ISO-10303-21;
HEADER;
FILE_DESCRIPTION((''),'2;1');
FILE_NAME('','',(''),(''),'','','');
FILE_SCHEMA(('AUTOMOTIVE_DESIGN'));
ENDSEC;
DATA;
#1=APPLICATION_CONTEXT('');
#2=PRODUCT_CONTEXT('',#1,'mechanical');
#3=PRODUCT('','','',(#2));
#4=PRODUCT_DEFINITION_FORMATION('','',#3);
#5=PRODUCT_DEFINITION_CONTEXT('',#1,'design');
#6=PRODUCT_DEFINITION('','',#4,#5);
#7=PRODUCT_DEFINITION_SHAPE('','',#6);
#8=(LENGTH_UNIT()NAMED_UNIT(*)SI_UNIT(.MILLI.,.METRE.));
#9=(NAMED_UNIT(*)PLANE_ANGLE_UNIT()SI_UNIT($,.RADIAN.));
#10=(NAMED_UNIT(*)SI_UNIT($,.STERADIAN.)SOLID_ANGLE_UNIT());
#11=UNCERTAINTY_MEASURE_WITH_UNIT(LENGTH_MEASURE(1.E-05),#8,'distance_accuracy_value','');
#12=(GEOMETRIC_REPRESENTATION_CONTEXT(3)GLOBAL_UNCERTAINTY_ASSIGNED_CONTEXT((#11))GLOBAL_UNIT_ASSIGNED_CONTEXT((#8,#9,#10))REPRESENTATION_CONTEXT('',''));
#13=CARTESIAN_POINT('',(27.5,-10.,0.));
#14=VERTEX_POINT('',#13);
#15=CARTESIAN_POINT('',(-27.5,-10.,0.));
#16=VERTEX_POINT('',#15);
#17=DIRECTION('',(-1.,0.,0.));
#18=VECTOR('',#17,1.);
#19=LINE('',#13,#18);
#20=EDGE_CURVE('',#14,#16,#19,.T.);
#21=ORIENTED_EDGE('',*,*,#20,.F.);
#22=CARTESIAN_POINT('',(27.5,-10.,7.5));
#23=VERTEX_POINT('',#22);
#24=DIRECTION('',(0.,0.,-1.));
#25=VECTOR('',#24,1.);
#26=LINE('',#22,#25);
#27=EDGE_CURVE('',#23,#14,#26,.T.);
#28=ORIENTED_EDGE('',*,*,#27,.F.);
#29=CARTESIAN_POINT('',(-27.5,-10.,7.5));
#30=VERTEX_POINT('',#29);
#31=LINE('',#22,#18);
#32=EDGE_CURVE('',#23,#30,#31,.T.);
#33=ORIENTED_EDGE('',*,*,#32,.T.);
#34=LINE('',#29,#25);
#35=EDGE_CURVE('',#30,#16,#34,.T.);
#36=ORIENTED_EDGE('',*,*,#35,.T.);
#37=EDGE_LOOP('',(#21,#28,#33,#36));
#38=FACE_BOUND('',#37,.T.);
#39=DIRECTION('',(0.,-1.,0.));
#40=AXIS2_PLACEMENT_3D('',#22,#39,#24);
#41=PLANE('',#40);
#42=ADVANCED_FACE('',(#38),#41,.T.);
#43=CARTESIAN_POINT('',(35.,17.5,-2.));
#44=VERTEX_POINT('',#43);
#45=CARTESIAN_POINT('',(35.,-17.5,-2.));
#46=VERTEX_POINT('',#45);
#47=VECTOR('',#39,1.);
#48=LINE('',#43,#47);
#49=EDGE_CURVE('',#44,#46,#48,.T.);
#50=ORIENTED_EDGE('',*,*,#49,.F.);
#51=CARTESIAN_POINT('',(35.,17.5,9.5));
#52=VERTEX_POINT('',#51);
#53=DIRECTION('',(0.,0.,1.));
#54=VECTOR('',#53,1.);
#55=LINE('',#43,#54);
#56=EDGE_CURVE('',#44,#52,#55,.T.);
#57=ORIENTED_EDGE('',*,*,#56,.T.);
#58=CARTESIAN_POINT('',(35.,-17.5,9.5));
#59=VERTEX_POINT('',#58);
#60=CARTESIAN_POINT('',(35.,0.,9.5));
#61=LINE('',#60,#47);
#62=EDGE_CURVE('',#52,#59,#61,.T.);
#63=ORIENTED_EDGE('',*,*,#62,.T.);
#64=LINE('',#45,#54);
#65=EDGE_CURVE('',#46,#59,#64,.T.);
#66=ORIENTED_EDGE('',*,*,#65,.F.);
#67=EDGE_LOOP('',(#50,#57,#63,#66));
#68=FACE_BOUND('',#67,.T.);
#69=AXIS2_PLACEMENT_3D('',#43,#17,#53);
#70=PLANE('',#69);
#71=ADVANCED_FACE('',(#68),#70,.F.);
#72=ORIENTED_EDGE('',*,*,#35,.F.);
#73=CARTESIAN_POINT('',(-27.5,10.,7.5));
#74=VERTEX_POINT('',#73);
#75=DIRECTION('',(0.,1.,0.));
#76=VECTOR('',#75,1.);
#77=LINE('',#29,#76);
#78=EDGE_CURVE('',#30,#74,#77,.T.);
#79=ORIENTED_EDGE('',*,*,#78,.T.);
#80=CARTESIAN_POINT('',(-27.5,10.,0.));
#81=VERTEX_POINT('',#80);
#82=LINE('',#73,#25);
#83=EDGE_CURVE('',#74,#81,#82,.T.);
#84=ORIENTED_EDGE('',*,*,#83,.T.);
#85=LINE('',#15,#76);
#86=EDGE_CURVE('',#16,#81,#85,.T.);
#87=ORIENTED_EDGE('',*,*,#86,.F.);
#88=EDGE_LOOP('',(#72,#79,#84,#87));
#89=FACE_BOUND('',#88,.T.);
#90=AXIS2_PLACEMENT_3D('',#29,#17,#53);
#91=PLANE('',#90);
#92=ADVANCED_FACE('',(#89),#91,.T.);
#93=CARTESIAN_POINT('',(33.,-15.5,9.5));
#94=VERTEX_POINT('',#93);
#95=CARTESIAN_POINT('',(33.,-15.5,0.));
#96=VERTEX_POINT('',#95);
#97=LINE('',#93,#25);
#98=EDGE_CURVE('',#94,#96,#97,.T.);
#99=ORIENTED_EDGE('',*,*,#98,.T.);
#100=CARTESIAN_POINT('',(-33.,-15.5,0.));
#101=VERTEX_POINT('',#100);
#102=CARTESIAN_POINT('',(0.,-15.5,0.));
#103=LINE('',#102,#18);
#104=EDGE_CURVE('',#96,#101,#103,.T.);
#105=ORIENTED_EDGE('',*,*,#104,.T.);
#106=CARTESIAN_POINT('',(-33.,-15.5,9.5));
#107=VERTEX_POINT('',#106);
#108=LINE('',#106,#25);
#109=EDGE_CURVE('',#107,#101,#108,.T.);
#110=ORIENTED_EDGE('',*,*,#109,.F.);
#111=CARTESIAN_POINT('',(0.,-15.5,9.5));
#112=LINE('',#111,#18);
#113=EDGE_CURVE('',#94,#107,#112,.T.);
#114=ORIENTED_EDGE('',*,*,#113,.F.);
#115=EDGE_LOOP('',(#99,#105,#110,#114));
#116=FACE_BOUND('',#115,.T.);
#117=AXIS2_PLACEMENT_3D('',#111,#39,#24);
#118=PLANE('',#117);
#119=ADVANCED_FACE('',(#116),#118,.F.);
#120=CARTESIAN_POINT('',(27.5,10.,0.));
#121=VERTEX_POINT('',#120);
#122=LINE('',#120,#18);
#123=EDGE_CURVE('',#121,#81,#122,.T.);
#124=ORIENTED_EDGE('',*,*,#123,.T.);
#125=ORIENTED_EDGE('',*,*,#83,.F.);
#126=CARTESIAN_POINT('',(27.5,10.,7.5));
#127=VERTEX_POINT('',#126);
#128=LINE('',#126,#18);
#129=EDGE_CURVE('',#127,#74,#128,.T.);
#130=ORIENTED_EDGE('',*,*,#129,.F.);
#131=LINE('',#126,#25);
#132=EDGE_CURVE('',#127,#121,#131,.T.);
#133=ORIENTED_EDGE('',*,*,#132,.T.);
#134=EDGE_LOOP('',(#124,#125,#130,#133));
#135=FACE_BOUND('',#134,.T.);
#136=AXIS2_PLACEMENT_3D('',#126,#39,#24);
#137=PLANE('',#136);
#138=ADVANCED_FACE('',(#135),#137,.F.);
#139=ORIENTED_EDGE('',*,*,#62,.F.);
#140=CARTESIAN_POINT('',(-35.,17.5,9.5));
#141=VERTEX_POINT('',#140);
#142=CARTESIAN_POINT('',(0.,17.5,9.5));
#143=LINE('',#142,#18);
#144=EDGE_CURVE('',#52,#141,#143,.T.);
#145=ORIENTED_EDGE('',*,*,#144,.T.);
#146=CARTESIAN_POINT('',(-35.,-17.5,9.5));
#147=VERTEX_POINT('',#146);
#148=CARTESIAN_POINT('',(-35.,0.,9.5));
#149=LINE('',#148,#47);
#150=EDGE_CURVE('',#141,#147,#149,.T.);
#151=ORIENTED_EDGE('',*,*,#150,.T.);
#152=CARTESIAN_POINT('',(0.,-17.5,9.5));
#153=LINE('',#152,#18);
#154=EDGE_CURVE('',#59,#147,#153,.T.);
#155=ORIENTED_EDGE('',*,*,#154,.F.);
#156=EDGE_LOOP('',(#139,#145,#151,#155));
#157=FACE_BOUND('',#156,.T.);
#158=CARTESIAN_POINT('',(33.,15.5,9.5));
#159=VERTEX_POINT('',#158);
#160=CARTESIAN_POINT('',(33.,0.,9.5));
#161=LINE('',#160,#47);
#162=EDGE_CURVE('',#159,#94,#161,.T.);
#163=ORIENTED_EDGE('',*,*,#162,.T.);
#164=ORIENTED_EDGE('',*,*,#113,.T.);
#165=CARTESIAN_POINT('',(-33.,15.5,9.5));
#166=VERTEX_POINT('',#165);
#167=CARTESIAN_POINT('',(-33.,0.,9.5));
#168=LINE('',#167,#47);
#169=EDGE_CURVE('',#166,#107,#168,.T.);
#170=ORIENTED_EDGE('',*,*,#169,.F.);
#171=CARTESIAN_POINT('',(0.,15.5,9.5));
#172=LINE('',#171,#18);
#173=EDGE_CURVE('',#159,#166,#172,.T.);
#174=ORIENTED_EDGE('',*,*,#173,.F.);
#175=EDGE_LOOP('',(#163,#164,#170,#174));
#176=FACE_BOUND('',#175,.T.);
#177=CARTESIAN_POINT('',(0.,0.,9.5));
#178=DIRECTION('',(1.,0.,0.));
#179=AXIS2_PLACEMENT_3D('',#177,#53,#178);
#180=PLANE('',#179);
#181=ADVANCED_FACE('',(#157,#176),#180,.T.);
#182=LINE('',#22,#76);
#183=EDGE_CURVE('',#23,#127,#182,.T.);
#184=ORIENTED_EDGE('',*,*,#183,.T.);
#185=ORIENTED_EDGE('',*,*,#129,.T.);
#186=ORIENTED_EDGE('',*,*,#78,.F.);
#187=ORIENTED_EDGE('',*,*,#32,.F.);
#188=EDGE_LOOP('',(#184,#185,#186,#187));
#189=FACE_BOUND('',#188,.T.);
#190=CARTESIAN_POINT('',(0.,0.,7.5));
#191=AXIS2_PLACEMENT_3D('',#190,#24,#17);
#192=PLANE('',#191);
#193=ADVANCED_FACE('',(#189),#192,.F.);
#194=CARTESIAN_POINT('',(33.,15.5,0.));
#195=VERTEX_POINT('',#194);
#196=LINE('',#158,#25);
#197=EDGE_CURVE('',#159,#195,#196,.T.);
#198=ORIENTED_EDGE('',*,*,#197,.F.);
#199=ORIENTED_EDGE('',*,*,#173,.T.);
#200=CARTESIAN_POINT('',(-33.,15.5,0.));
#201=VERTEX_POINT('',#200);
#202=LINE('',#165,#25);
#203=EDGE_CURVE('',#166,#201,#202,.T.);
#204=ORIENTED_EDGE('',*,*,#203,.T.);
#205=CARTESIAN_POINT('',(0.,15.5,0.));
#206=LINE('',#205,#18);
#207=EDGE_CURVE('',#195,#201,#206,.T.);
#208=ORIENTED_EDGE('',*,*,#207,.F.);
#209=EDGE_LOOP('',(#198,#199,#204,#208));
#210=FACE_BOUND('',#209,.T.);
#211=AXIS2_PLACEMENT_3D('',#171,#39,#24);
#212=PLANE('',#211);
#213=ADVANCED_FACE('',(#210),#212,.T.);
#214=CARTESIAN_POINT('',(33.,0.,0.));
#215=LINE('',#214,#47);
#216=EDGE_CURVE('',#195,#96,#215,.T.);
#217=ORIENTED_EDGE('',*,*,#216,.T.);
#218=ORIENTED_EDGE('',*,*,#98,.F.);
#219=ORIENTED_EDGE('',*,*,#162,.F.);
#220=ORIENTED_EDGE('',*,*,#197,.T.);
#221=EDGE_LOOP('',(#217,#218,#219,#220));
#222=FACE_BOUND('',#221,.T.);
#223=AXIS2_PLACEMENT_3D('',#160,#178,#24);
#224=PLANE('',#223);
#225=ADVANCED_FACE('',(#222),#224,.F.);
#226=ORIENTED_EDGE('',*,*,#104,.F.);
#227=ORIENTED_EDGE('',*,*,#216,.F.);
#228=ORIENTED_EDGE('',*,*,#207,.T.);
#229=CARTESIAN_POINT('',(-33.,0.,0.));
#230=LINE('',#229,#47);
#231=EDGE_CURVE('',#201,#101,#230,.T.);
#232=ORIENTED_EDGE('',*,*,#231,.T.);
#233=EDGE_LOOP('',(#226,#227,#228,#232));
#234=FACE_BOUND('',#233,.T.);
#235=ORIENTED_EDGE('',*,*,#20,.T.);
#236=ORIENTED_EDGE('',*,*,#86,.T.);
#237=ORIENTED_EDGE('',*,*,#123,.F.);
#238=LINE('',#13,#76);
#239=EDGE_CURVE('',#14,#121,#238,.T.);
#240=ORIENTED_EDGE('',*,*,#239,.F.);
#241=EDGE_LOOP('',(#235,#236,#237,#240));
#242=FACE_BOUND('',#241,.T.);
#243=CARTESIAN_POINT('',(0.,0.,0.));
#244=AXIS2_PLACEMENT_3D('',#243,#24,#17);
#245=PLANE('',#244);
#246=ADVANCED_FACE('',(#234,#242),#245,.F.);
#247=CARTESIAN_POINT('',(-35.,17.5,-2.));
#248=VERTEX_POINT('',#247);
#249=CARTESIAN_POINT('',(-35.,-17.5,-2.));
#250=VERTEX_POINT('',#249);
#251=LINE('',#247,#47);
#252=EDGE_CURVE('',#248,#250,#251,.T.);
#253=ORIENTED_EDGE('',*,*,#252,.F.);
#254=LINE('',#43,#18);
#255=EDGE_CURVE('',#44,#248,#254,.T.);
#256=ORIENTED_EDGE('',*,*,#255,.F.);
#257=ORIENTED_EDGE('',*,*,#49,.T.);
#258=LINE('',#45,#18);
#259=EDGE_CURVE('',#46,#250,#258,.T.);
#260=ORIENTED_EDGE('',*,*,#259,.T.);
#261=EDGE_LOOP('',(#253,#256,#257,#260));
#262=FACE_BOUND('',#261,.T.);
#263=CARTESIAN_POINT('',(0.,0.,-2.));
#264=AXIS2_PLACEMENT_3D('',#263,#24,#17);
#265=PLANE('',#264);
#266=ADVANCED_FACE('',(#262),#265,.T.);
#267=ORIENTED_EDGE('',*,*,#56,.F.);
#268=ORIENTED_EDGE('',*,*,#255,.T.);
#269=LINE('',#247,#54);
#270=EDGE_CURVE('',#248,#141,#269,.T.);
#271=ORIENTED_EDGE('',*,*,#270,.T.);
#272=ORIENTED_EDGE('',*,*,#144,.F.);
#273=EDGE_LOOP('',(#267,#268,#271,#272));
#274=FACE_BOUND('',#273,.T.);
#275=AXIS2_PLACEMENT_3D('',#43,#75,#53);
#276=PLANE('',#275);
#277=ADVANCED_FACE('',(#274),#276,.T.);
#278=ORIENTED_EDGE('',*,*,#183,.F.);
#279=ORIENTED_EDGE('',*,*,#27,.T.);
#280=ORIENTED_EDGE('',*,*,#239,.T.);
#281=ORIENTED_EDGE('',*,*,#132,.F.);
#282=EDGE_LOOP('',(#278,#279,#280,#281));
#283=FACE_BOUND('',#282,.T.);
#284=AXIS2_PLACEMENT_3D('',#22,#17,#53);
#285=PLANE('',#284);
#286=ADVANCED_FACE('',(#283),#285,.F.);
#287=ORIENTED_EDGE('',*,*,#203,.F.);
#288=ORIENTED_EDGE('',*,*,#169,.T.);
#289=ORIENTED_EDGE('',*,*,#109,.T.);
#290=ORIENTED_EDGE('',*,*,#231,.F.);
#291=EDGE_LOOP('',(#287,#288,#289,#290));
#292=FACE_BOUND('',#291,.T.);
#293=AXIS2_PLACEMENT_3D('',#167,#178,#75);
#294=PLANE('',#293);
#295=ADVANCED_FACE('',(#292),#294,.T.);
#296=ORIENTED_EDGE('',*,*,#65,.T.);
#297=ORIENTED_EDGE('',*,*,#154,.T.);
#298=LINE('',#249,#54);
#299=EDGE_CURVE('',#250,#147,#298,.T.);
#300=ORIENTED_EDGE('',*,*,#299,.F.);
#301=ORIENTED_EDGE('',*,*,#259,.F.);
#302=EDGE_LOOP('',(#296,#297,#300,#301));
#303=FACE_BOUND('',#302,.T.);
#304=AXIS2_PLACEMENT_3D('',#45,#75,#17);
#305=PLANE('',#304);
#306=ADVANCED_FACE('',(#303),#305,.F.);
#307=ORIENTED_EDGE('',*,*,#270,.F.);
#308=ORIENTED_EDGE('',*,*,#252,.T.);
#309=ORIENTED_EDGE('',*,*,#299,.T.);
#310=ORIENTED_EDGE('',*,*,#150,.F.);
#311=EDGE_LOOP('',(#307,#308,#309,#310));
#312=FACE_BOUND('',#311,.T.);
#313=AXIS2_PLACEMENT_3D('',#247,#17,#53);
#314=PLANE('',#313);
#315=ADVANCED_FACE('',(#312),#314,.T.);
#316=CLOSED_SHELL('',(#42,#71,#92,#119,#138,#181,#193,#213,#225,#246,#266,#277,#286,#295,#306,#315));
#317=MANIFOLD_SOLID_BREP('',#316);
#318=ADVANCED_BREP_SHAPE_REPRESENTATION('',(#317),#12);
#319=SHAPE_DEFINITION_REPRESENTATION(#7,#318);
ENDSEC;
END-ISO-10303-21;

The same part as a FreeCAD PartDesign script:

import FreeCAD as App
import Part
import Sketcher
from FreeCAD import Vector
Q = App.Units.Quantity

doc = App.newDocument("Part")
params = doc.addObject("Spreadsheet::Sheet", "Params")
for row, (alias, value) in enumerate([
    ("sketch1_width", "70 mm"),
    ("sketch1_height", "35 mm"),
    ("pad1_length", "2 mm"),
    ("sketch2_width", "70 mm"),
    ("sketch2_width2", "66 mm"),
    ("sketch2_height", "35 mm"),
    ("sketch2_height2", "31 mm"),
    ("pad2_length", "9.5 mm"),
    ("sketch3_width", "55 mm"),
    ("sketch3_height", "20 mm"),
    ("pad3_length", "7.5 mm"),
], start=1):
    params.set(f"A{row}", alias)
    params.set(f"B{row}", "=" + value)
    params.setAlias(f"B{row}", alias)

body = doc.addObject("PartDesign::Body", "Body")

# Sketch on XY plane
sketch1 = body.newObject("Sketcher::SketchObject", "Sketch")
sketch1.AttachmentSupport = (doc.getObject("XY_Plane"), [""])
sketch1.MapMode = "FlatFace"
sketch1.addGeometry([
    Part.LineSegment(Vector(-35, 17.5, 0), Vector(-35, -17.5, 0)),
    Part.LineSegment(Vector(-35, -17.5, 0), Vector(35, -17.5, 0)),
    Part.LineSegment(Vector(35, -17.5, 0), Vector(35, 17.5, 0)),
    Part.LineSegment(Vector(35, 17.5, 0), Vector(-35, 17.5, 0)),
], False)
sketch1.addConstraint([
    Sketcher.Constraint("Coincident", 0, 2, 1, 1),
    Sketcher.Constraint("Coincident", 1, 2, 2, 1),
    Sketcher.Constraint("Coincident", 2, 2, 3, 1),
    Sketcher.Constraint("Coincident", 3, 2, 0, 1),
    Sketcher.Constraint("Vertical", 0),
    Sketcher.Constraint("Horizontal", 1),
    Sketcher.Constraint("Vertical", 2),
    Sketcher.Constraint("Horizontal", 3),
    Sketcher.Constraint("Symmetric", 0, 2, 2, 2, -1, 1),
    Sketcher.Constraint("DistanceX", 1, 1, 1, 2, Q("70 mm")),
    Sketcher.Constraint("DistanceY", 0, 2, 0, 1, Q("35 mm")),
])
sketch1.setExpression("Constraints[9]", "Params.sketch1_width")
sketch1.setExpression("Constraints[10]", "Params.sketch1_height")
pad1 = body.newObject("PartDesign::Pad", "Pad")
pad1.Profile = sketch1
pad1.setExpression("Length", "Params.pad1_length")
pad1.Reversed = True

# Sketch on XY plane
sketch2 = body.newObject("Sketcher::SketchObject", "Sketch001")
sketch2.AttachmentSupport = (doc.getObject("XY_Plane"), [""])
sketch2.MapMode = "FlatFace"
sketch2.addGeometry([
    Part.LineSegment(Vector(-35, 17.5, 0), Vector(-35, -17.5, 0)),  # 0
    Part.LineSegment(Vector(-35, -17.5, 0), Vector(35, -17.5, 0)),  # 1
    Part.LineSegment(Vector(35, -17.5, 0), Vector(35, 17.5, 0)),  # 2
    Part.LineSegment(Vector(35, 17.5, 0), Vector(-35, 17.5, 0)),  # 3
    Part.LineSegment(Vector(33, -15.5, 0), Vector(-33, -15.5, 0)),  # 4
    Part.LineSegment(Vector(-33, -15.5, 0), Vector(-33, 15.5, 0)),  # 5
    Part.LineSegment(Vector(-33, 15.5, 0), Vector(33, 15.5, 0)),  # 6
    Part.LineSegment(Vector(33, 15.5, 0), Vector(33, -15.5, 0)),  # 7
], False)
sketch2.addConstraint([
    Sketcher.Constraint("Coincident", 0, 2, 1, 1),
    Sketcher.Constraint("Coincident", 1, 2, 2, 1),
    Sketcher.Constraint("Coincident", 2, 2, 3, 1),
    Sketcher.Constraint("Coincident", 3, 2, 0, 1),
    Sketcher.Constraint("Coincident", 4, 2, 5, 1),
    Sketcher.Constraint("Coincident", 5, 2, 6, 1),
    Sketcher.Constraint("Coincident", 6, 2, 7, 1),
    Sketcher.Constraint("Coincident", 7, 2, 4, 1),
    Sketcher.Constraint("Vertical", 0),
    Sketcher.Constraint("Horizontal", 1),
    Sketcher.Constraint("Vertical", 2),
    Sketcher.Constraint("Horizontal", 3),
    Sketcher.Constraint("Horizontal", 4),
    Sketcher.Constraint("Vertical", 5),
    Sketcher.Constraint("Horizontal", 6),
    Sketcher.Constraint("Vertical", 7),
    Sketcher.Constraint("Symmetric", 0, 2, 2, 2, -1, 1),
    Sketcher.Constraint("Symmetric", 4, 2, 6, 2, -1, 1),
    Sketcher.Constraint("DistanceX", 1, 1, 1, 2, Q("70 mm")),
    Sketcher.Constraint("DistanceX", 4, 2, 4, 1, Q("66 mm")),
    Sketcher.Constraint("DistanceY", 0, 2, 0, 1, Q("35 mm")),
    Sketcher.Constraint("DistanceY", 5, 1, 5, 2, Q("31 mm")),
])
sketch2.setExpression("Constraints[18]", "Params.sketch2_width")
sketch2.setExpression("Constraints[19]", "Params.sketch2_width2")
sketch2.setExpression("Constraints[20]", "Params.sketch2_height")
sketch2.setExpression("Constraints[21]", "Params.sketch2_height2")
pad2 = body.newObject("PartDesign::Pad", "Pad001")
pad2.Profile = sketch2
pad2.setExpression("Length", "Params.pad2_length")

# Sketch on XY plane
sketch3 = body.newObject("Sketcher::SketchObject", "Sketch002")
sketch3.AttachmentSupport = (doc.getObject("XY_Plane"), [""])
sketch3.MapMode = "FlatFace"
sketch3.addGeometry([
    Part.LineSegment(Vector(-27.5, 10, 0), Vector(-27.5, -10, 0)),
    Part.LineSegment(Vector(-27.5, -10, 0), Vector(27.5, -10, 0)),
    Part.LineSegment(Vector(27.5, -10, 0), Vector(27.5, 10, 0)),
    Part.LineSegment(Vector(27.5, 10, 0), Vector(-27.5, 10, 0)),
], False)
sketch3.addConstraint([
    Sketcher.Constraint("Coincident", 0, 2, 1, 1),
    Sketcher.Constraint("Coincident", 1, 2, 2, 1),
    Sketcher.Constraint("Coincident", 2, 2, 3, 1),
    Sketcher.Constraint("Coincident", 3, 2, 0, 1),
    Sketcher.Constraint("Vertical", 0),
    Sketcher.Constraint("Horizontal", 1),
    Sketcher.Constraint("Vertical", 2),
    Sketcher.Constraint("Horizontal", 3),
    Sketcher.Constraint("Symmetric", 0, 2, 2, 2, -1, 1),
    Sketcher.Constraint("DistanceX", 1, 1, 1, 2, Q("55 mm")),
    Sketcher.Constraint("DistanceY", 0, 2, 0, 1, Q("20 mm")),
])
sketch3.setExpression("Constraints[9]", "Params.sketch3_width")
sketch3.setExpression("Constraints[10]", "Params.sketch3_height")
pad3 = body.newObject("PartDesign::Pad", "Pad002")
pad3.Profile = sketch3
pad3.setExpression("Length", "Params.pad3_length")

doc.recompute()
